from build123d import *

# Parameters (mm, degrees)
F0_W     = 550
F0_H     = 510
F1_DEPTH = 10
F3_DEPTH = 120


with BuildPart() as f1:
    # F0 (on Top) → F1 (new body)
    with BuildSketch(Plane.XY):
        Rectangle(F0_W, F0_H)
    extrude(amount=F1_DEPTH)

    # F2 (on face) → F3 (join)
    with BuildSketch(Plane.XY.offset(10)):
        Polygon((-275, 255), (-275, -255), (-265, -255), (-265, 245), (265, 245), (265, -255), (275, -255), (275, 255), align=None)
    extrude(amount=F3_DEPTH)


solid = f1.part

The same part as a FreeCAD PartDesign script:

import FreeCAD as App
import Part
import Sketcher
from FreeCAD import Vector

doc = App.newDocument("Part")
body = doc.addObject("PartDesign::Body", "Body")

# Sketch on XY plane
sketch1 = doc.addObject("Sketcher::SketchObject", "Sketch")
body.addObject(sketch1)
sketch1.AttachmentSupport = (doc.XY_Plane, [""])
sketch1.MapMode = "FlatFace"
sketch1.addGeometry(Part.LineSegment(Vector(-275, 255, 0), Vector(-275, -255, 0)), False)
sketch1.addGeometry(Part.LineSegment(Vector(-275, -255, 0), Vector(275, -255, 0)), False)
sketch1.addGeometry(Part.LineSegment(Vector(275, -255, 0), Vector(275, 255, 0)), False)
sketch1.addGeometry(Part.LineSegment(Vector(275, 255, 0), Vector(-275, 255, 0)), False)
sketch1.addConstraint(Sketcher.Constraint("Coincident", 0, 2, 1, 1))
sketch1.addConstraint(Sketcher.Constraint("Coincident", 1, 2, 2, 1))
sketch1.addConstraint(Sketcher.Constraint("Coincident", 2, 2, 3, 1))
sketch1.addConstraint(Sketcher.Constraint("Coincident", 3, 2, 0, 1))
sketch1.addConstraint(Sketcher.Constraint("Vertical", 0))
sketch1.addConstraint(Sketcher.Constraint("Horizontal", 1))
sketch1.addConstraint(Sketcher.Constraint("Vertical", 2))
sketch1.addConstraint(Sketcher.Constraint("Horizontal", 3))
sketch1.addConstraint(Sketcher.Constraint("Symmetric", 0, 2, 2, 2, -1, 1))
sketch1.addConstraint(Sketcher.Constraint("DistanceX", 1, 1, 1, 2, 550.0))
sketch1.addConstraint(Sketcher.Constraint("DistanceY", 0, 2, 0, 1, 510.0))
pad1 = doc.addObject("PartDesign::Pad", "Pad")
body.addObject(pad1)
pad1.Profile = sketch1
pad1.Length = 10

# Sketch on XY plane
sketch2 = doc.addObject("Sketcher::SketchObject", "Sketch001")
body.addObject(sketch2)
sketch2.AttachmentSupport = (doc.XY_Plane, [""])
sketch2.MapMode = "FlatFace"
sketch2.AttachmentOffset = App.Placement(Vector(0, 0, 10), App.Rotation())
sketch2.addGeometry(Part.LineSegment(Vector(-275, 255, 0), Vector(-275, -255, 0)), False)
sketch2.addGeometry(Part.LineSegment(Vector(-275, -255, 0), Vector(-265, -255, 0)), False)
sketch2.addGeometry(Part.LineSegment(Vector(-265, -255, 0), Vector(-265, 245, 0)), False)
sketch2.addGeometry(Part.LineSegment(Vector(-265, 245, 0), Vector(265, 245, 0)), False)
sketch2.addGeometry(Part.LineSegment(Vector(265, 245, 0), Vector(265, -255, 0)), False)
sketch2.addGeometry(Part.LineSegment(Vector(265, -255, 0), Vector(275, -255, 0)), False)
sketch2.addGeometry(Part.LineSegment(Vector(275, -255, 0), Vector(275, 255, 0)), False)
sketch2.addGeometry(Part.LineSegment(Vector(275, 255, 0), Vector(-275, 255, 0)), False)
sketch2.addConstraint(Sketcher.Constraint("Coincident", 0, 2, 1, 1))
sketch2.addConstraint(Sketcher.Constraint("Coincident", 1, 2, 2, 1))
sketch2.addConstraint(Sketcher.Constraint("Coincident", 2, 2, 3, 1))
sketch2.addConstraint(Sketcher.Constraint("Coincident", 3, 2, 4, 1))
sketch2.addConstraint(Sketcher.Constraint("Coincident", 4, 2, 5, 1))
sketch2.addConstraint(Sketcher.Constraint("Coincident", 5, 2, 6, 1))
sketch2.addConstraint(Sketcher.Constraint("Coincident", 6, 2, 7, 1))
sketch2.addConstraint(Sketcher.Constraint("Coincident", 7, 2, 0, 1))
sketch2.addConstraint(Sketcher.Constraint("Vertical", 0))
sketch2.addConstraint(Sketcher.Constraint("Horizontal", 1))
sketch2.addConstraint(Sketcher.Constraint("Vertical", 2))
sketch2.addConstraint(Sketcher.Constraint("Horizontal", 3))
sketch2.addConstraint(Sketcher.Constraint("Vertical", 4))
sketch2.addConstraint(Sketcher.Constraint("Horizontal", 5))
sketch2.addConstraint(Sketcher.Constraint("Vertical", 6))
sketch2.addConstraint(Sketcher.Constraint("Horizontal", 7))
sketch2.addConstraint(Sketcher.Constraint("Symmetric", 0, 2, 6, 2, -1, 1))
sketch2.addConstraint(Sketcher.Constraint("Symmetric", 1, 2, 4, 2, -2))
sketch2.addConstraint(Sketcher.Constraint("DistanceX", 1, 1, 1, 2, 10.0))
sketch2.addConstraint(Sketcher.Constraint("DistanceX", 3, 1, 3, 2, 530.0))
sketch2.addConstraint(Sketcher.Constraint("DistanceY", 0, 2, 0, 1, 510.0))
sketch2.addConstraint(Sketcher.Constraint("DistanceY", 2, 1, 2, 2, 500.0))
pad2 = doc.addObject("PartDesign::Pad", "Pad001")
body.addObject(pad2)
pad2.Profile = sketch2
pad2.Length = 120

doc.recompute()
